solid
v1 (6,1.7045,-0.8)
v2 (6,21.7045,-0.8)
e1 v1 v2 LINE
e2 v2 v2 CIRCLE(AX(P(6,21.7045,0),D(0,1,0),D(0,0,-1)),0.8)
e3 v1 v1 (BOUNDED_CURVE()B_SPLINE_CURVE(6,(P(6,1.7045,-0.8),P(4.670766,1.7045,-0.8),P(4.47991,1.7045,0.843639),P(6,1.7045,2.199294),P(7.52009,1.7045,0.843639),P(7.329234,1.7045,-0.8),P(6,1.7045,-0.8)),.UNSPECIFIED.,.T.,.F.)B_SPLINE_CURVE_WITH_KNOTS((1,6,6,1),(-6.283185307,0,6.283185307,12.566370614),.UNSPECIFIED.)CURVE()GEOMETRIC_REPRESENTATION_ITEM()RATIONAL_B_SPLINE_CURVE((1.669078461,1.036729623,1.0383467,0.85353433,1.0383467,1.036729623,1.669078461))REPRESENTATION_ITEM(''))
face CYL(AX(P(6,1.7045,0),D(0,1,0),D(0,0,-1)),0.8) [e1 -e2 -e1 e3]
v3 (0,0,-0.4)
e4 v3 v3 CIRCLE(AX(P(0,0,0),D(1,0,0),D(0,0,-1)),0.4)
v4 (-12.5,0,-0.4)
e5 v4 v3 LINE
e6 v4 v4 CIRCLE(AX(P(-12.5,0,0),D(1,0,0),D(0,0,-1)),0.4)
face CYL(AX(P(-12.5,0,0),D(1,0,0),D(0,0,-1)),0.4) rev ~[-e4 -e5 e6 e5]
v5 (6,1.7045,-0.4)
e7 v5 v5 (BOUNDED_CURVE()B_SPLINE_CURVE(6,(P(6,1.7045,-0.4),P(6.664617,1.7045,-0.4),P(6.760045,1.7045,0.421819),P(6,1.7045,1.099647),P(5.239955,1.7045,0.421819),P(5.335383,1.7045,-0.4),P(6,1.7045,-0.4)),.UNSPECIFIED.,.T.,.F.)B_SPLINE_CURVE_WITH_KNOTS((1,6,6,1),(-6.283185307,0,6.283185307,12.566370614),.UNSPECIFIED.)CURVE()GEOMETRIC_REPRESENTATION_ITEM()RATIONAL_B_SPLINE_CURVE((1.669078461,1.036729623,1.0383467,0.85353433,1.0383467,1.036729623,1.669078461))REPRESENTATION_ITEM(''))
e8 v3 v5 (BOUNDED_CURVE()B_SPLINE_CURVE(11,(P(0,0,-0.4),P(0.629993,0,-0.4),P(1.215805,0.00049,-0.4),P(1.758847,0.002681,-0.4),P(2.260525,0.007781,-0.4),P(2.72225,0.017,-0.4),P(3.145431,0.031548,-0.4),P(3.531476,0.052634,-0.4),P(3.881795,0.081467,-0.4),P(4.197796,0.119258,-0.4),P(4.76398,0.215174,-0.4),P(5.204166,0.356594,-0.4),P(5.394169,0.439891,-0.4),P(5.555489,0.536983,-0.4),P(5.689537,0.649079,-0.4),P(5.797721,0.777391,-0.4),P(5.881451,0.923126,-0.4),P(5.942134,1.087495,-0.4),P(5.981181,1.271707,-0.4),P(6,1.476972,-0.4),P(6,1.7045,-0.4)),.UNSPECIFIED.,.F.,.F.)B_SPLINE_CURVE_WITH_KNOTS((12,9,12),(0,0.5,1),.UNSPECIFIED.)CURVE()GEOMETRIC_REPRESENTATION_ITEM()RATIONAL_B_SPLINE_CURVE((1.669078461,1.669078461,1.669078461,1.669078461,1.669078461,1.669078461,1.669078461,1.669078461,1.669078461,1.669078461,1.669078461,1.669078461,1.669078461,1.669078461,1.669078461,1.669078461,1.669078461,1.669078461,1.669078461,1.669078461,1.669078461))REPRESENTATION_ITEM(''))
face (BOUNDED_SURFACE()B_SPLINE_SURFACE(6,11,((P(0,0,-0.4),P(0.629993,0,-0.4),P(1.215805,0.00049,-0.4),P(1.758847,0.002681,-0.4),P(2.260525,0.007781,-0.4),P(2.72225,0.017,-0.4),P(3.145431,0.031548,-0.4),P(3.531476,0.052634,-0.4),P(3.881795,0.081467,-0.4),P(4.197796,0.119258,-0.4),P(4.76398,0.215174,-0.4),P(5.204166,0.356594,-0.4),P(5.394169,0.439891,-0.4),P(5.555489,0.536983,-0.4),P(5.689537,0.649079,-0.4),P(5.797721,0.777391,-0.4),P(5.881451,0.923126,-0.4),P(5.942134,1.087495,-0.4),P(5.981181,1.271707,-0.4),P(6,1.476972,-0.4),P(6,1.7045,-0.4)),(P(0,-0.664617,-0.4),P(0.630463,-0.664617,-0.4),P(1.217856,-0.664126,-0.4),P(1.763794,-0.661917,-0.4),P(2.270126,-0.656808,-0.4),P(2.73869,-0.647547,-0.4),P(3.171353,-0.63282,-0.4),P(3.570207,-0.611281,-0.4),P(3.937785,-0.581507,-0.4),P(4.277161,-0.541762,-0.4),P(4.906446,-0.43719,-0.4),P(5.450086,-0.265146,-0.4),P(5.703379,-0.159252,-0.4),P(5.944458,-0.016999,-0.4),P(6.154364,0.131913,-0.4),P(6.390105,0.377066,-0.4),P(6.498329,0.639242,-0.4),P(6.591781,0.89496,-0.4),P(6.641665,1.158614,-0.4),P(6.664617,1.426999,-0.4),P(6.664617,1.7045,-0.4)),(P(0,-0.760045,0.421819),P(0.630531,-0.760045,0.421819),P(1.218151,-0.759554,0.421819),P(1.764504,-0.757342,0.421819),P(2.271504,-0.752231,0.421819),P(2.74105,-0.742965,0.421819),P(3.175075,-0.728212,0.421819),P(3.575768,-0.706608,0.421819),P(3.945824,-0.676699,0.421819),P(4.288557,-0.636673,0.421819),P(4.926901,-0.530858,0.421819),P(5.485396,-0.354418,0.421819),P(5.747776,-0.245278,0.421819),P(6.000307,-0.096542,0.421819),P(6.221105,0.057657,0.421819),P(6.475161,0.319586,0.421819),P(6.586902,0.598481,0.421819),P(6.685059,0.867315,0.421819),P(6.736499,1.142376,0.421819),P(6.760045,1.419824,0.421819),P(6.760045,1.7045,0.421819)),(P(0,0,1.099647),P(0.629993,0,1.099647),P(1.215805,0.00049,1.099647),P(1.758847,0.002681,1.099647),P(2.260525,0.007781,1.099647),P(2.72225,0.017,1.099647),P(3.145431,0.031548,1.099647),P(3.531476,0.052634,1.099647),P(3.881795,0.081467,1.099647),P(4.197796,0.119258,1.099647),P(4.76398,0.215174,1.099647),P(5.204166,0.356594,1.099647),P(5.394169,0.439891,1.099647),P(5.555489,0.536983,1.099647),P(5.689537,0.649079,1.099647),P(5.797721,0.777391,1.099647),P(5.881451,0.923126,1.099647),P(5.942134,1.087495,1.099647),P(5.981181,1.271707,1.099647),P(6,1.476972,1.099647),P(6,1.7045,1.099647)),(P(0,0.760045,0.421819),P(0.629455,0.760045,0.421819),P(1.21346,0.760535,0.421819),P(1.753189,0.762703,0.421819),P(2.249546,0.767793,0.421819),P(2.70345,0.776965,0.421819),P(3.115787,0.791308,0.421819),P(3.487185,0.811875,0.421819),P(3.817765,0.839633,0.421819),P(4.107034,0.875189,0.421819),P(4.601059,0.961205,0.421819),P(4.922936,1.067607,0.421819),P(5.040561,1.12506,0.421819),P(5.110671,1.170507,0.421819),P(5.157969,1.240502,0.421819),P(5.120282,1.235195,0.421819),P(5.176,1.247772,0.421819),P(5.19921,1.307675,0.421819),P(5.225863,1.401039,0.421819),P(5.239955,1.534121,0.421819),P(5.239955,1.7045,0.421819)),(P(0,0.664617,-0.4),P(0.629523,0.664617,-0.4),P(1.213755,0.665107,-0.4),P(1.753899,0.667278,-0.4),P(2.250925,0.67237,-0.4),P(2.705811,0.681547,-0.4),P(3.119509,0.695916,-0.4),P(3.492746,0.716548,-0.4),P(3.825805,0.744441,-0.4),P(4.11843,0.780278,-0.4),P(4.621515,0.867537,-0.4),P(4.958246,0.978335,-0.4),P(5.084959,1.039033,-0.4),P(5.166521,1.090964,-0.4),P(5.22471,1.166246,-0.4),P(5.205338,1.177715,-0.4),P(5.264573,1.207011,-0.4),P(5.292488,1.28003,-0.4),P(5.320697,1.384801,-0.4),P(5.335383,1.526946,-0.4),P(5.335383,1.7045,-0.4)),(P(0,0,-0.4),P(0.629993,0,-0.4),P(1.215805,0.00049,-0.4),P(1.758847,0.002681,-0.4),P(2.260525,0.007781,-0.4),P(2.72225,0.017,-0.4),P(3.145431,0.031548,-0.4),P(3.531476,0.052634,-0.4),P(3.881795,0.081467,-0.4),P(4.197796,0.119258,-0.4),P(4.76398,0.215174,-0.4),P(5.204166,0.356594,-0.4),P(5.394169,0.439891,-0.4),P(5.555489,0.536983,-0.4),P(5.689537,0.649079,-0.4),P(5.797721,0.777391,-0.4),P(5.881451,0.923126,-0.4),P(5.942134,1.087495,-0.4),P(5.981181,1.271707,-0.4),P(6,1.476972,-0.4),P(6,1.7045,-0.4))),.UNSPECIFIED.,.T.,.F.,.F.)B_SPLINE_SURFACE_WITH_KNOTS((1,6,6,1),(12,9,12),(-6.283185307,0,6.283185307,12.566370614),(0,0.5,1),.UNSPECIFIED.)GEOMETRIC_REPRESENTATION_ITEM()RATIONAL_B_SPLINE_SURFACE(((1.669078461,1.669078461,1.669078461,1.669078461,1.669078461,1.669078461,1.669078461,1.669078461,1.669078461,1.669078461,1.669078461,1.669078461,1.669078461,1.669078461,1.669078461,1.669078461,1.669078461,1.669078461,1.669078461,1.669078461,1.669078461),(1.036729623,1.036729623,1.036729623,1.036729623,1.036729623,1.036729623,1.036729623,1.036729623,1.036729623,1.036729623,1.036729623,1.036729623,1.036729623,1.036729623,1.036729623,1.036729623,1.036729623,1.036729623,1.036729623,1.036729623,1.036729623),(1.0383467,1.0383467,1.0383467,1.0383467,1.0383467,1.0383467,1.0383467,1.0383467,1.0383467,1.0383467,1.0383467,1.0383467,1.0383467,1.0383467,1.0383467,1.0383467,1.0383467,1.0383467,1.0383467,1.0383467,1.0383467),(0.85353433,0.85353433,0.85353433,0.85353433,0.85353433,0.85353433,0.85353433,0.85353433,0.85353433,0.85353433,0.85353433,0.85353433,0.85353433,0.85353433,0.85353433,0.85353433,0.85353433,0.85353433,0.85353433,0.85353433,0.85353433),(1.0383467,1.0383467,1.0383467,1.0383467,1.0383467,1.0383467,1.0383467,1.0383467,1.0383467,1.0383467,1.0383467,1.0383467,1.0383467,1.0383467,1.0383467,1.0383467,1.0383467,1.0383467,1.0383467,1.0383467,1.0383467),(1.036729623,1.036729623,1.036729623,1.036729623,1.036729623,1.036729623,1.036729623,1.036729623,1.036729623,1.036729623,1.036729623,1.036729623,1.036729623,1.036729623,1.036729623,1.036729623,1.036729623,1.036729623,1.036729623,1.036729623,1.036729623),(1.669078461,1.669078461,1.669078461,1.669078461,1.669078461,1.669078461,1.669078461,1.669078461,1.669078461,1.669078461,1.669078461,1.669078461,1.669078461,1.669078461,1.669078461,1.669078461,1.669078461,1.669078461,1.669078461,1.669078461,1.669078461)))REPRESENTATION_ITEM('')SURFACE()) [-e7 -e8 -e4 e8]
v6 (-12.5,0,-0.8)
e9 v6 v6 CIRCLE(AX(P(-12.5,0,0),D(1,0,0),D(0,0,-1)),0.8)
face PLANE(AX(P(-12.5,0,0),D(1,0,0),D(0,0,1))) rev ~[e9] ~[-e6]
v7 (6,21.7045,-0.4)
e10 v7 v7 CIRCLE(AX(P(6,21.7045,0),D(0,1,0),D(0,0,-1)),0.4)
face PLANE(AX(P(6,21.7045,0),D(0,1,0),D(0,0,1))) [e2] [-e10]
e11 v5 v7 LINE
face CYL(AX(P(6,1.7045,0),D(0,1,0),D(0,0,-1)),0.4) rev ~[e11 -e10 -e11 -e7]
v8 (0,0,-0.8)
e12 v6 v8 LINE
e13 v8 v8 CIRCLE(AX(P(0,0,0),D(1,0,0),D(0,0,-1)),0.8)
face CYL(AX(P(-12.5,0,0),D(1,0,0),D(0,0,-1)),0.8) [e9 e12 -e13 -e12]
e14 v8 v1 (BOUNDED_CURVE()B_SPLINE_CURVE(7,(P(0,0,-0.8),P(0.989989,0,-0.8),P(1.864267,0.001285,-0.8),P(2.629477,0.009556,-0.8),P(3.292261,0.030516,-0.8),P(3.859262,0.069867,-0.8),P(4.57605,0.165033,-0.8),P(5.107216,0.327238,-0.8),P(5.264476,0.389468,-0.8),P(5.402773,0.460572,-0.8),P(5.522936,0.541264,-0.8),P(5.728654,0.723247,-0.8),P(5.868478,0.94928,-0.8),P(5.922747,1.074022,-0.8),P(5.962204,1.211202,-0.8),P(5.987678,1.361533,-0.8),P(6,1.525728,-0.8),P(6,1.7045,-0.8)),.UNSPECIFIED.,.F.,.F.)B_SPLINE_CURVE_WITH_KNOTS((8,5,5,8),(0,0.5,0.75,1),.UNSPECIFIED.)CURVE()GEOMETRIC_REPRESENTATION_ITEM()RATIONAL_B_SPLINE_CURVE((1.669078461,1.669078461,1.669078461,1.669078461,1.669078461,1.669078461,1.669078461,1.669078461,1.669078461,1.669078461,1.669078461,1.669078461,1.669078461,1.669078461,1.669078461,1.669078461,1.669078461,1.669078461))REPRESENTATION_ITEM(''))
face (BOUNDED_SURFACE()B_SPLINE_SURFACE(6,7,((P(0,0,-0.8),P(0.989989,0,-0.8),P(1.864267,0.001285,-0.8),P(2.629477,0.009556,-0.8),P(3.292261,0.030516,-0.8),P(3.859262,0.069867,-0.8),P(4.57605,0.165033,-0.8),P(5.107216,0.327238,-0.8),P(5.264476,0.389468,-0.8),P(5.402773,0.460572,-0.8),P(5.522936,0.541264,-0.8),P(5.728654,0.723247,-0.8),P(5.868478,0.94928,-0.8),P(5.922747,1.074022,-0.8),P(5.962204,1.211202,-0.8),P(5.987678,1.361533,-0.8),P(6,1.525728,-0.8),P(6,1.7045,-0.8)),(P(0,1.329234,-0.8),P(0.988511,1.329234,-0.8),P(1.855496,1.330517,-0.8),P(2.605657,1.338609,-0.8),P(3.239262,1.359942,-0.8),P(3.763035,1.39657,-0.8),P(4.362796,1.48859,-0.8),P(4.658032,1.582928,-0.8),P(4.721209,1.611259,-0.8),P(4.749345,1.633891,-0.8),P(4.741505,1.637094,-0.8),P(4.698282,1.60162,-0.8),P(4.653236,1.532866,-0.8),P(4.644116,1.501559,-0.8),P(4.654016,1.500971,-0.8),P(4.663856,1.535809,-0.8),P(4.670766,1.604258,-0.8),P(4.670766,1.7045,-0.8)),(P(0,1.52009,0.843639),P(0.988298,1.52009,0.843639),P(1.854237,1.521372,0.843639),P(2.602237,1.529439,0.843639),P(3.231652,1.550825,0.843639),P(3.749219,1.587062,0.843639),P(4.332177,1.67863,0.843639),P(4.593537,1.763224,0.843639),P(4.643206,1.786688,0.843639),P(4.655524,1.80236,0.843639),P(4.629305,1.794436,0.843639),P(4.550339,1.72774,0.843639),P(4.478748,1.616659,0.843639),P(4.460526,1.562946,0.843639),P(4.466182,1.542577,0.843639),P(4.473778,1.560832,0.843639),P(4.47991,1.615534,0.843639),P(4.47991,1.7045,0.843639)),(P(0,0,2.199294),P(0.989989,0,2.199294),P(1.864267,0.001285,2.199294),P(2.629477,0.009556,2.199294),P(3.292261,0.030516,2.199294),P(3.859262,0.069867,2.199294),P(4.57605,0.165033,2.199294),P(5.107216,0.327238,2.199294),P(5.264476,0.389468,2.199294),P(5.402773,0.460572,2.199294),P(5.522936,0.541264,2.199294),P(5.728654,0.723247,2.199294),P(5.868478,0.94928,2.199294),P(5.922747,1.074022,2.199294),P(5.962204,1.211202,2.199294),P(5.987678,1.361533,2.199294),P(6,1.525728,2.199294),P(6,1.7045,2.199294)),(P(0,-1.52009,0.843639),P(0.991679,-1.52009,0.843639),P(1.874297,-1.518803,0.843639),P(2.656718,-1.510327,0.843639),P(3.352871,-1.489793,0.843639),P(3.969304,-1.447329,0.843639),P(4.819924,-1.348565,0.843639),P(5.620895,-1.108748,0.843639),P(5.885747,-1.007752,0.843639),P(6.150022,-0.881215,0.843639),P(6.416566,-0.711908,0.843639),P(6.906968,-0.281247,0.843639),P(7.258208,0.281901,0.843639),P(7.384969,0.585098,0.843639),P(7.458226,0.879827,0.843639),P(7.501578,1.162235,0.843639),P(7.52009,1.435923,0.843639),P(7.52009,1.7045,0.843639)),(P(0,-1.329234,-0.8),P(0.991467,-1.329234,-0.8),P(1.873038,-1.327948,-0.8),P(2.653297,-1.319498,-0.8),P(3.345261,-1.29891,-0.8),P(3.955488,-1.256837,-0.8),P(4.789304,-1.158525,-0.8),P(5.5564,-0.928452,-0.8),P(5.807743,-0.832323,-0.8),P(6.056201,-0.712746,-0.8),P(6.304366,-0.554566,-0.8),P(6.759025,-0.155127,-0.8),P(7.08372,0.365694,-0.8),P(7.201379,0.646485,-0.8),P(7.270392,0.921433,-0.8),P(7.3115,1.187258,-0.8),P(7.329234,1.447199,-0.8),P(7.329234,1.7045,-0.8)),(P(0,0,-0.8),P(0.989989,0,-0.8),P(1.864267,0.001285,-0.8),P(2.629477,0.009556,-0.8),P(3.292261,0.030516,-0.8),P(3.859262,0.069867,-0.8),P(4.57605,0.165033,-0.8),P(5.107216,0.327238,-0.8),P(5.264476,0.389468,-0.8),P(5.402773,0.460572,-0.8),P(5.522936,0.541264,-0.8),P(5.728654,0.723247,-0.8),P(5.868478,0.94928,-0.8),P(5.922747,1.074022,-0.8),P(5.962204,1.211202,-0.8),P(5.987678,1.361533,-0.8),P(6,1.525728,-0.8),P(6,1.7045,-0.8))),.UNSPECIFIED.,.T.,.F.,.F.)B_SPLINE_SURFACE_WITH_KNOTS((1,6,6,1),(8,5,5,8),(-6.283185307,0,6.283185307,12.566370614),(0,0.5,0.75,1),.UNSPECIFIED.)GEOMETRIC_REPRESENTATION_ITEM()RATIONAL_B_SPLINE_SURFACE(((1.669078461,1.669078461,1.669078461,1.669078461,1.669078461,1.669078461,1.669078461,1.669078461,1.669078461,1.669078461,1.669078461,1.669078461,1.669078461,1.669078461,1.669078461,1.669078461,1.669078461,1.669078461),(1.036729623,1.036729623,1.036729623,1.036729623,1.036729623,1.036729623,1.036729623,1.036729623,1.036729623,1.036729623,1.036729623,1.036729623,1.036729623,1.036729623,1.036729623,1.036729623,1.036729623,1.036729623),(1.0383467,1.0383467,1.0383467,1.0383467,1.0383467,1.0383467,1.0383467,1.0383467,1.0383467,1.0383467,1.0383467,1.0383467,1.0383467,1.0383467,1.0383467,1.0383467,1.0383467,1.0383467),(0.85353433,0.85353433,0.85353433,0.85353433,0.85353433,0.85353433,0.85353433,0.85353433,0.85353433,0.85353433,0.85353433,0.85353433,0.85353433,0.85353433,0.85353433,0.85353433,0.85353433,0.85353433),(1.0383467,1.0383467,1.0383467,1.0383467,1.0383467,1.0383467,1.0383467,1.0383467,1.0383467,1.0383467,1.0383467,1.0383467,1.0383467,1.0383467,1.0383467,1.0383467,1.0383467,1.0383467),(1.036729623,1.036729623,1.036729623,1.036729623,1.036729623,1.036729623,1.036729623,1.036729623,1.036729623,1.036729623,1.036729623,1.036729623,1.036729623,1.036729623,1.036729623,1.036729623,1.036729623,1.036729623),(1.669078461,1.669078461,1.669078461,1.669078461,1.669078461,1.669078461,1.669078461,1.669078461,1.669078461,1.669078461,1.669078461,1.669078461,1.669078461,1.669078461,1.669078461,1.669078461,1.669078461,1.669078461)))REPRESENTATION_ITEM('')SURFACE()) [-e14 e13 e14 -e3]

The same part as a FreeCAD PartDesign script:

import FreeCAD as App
import Part
import Sketcher

V = App.Vector

doc = App.newDocument("Part")
body = doc.addObject("PartDesign::Body", "Body")

# Sketch on YZ plane
sketch1 = body.newObject("Sketcher::SketchObject", "Sketch")
sketch1.AttachmentSupport = (doc.getObject("YZ_Plane"), [""])
sketch1.MapMode = "FlatFace"
sketch1.addGeometry(Part.Circle(V(0, 0, 0), V(0, 0, 1), 0.8), False)
sketch1.addGeometry(Part.Circle(V(0, 0, 0), V(0, 0, 1), 0.4), False)
sketch1.addConstraint(Sketcher.Constraint("Coincident", 0, 3, -1, 1))
sketch1.addConstraint(Sketcher.Constraint("Coincident", 1, 3, -1, 1))
sketch1.addConstraint(Sketcher.Constraint("Diameter", 0, 1.6))
sketch1.addConstraint(Sketcher.Constraint("Diameter", 1, 0.8))

# Sketch on XY plane
sketch2 = body.newObject("Sketcher::SketchObject", "Sketch001")
sketch2.AttachmentSupport = (doc.getObject("XY_Plane"), [""])
sketch2.MapMode = "FlatFace"
sketch2.addGeometry(Part.LineSegment(V(-12.5, 0, 0), V(0, 0, 0)), False)
sketch2.addGeometry(Part.BSplineCurve([V(0, 0, 0), V(4.619948, 0, 0), V(6, 0.035966, 0), V(6, 1.7045, 0)], [4, 4], [0, 1], False, 3, [1, 1, 1, 1], False), False)
sketch2.addGeometry(Part.LineSegment(V(6, 1.7045, 0), V(6, 21.7045, 0)), False)
sketch2.addConstraint(Sketcher.Constraint("Block", 1))
sketch2.addConstraint(Sketcher.Constraint("Coincident", 0, 2, 1, 1))
sketch2.addConstraint(Sketcher.Constraint("Coincident", 1, 2, 2, 1))
sketch2.addConstraint(Sketcher.Constraint("Horizontal", 0))
sketch2.addConstraint(Sketcher.Constraint("Vertical", 2))
sketch2.addConstraint(Sketcher.Constraint("DistanceY", 2, 1, 2, 2, 20.0))
sketch2.addConstraint(Sketcher.Constraint("DistanceX", 0, 1, 0, 2, 12.5))
doc.recompute()

additivepipe = body.newObject("PartDesign::AdditivePipe", "AdditivePipe")
additivepipe.Profile = sketch1
additivepipe.Spine = (sketch2, ["Edge1", "Edge2", "Edge3"])

doc.recompute()
